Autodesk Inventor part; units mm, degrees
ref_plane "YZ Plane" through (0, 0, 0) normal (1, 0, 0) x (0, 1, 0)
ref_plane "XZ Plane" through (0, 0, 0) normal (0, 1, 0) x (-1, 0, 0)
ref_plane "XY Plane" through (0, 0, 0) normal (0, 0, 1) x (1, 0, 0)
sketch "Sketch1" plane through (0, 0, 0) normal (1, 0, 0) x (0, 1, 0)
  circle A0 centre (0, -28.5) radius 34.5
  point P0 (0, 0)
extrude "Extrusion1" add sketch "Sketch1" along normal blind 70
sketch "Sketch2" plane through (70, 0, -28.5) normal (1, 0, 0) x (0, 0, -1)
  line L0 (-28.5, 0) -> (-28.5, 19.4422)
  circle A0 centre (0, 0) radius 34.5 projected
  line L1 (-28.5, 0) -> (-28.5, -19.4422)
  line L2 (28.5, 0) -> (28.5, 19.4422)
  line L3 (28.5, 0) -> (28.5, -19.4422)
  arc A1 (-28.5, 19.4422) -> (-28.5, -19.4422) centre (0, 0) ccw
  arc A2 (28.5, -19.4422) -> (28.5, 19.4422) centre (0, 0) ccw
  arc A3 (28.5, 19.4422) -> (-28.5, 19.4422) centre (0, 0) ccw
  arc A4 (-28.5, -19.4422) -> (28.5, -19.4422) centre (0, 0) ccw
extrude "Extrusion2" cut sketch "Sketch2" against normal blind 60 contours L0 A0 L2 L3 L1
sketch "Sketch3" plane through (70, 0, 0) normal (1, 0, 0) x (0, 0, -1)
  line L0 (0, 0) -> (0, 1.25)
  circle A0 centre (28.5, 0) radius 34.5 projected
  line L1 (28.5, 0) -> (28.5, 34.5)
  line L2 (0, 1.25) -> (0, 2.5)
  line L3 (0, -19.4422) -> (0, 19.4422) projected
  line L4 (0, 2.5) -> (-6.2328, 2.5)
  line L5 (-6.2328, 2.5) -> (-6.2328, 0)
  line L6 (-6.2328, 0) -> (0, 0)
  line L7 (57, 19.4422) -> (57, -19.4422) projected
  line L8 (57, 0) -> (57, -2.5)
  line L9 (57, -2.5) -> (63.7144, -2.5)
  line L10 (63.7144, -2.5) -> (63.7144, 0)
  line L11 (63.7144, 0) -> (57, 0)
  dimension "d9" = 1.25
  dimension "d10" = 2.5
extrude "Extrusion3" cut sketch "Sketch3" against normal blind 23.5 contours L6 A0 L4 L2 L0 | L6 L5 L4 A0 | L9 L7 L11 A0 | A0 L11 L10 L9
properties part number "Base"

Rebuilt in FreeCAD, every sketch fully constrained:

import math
import FreeCAD as App
import Part
import Sketcher


def add_polygon(sketch, points):
    """Adds a closed chain of lines whose ends are joined by coincident constraints."""
    first, n = sketch.GeometryCount, len(points)
    for a, b in zip(points, points[1:] + points[:1]):
        sketch.addGeometry(Part.LineSegment(App.Vector(*a, 0), App.Vector(*b, 0)), False)
    for i in range(n):
        sketch.addConstraint(Sketcher.Constraint("Coincident", first + i, 2, first + (i + 1) % n, 1))

doc = App.newDocument("Part")
body = doc.addObject("PartDesign::Body", "Body")

# Sketch on YZ plane
sketch1 = doc.addObject("Sketcher::SketchObject", "Sketch")
body.addObject(sketch1)
sketch1.AttachmentSupport = (doc.YZ_Plane, [""])
sketch1.MapMode = "FlatFace"
sketch1.addGeometry(Part.Circle(App.Vector(0, -28, 0), App.Vector(0, 0, 1), 34), False)
sketch1.addConstraint([
    Sketcher.Constraint("PointOnObject", 0, 3, -2),
    Sketcher.Constraint("Diameter", 0, 69.0),
    Sketcher.Constraint("DistanceY", 0, 3, -1, 1, 28.5),
])
pad1 = doc.addObject("PartDesign::Pad", "Pad")
body.addObject(pad1)
pad1.Profile = sketch1
pad1.Length = 70

# Sketch on YZ plane
sketch2 = doc.addObject("Sketcher::SketchObject", "Sketch001")
body.addObject(sketch2)
sketch2.AttachmentSupport = (doc.YZ_Plane, [""])
sketch2.MapMode = "FlatFace"
sketch2.AttachmentOffset = App.Placement(App.Vector(0, 0, 70), App.Rotation())
sketch2.addGeometry([
    Part.LineSegment(App.Vector(19, 0, 0), App.Vector(-19, 0, 0)),
    Part.ArcOfCircle(Part.Circle(App.Vector(0, -28, 0), App.Vector(0, 0, 1), 34), math.radians(124), math.radians(236)),
    Part.LineSegment(App.Vector(-19, -57, 0), App.Vector(19, -57, 0)),
    Part.ArcOfCircle(Part.Circle(App.Vector(0, -28, 0), App.Vector(0, 0, 1), 34), math.radians(-56), math.radians(56)),
], False)
sketch2.addConstraint([
    Sketcher.Constraint("Coincident", 0, 2, 1, 1),
    Sketcher.Constraint("Coincident", 1, 2, 2, 1),
    Sketcher.Constraint("Coincident", 2, 2, 3, 1),
    Sketcher.Constraint("Coincident", 3, 2, 0, 1),
    Sketcher.Constraint("Horizontal", 0),
    Sketcher.Constraint("Horizontal", 2),
    Sketcher.Constraint("Coincident", 3, 3, 1, 3),
    Sketcher.Constraint("Equal", 1, 3),
    Sketcher.Constraint("Symmetric", 0, 2, 3, 2, -1, 1),
    Sketcher.Constraint("Vertical", 0, 2, 1, 2),
    Sketcher.Constraint("Radius", 1, 34.5),
    Sketcher.Constraint("DistanceY", 1, 2, -1, 1, 57.0),
])
pocket1 = doc.addObject("PartDesign::Pocket", "Pocket")
body.addObject(pocket1)
pocket1.Profile = sketch2
pocket1.Length = 60

# Sketch on YZ plane
sketch3 = doc.addObject("Sketcher::SketchObject", "Sketch002")
body.addObject(sketch3)
sketch3.AttachmentSupport = (doc.YZ_Plane, [""])
sketch3.MapMode = "FlatFace"
sketch3.AttachmentOffset = App.Placement(App.Vector(0, 0, 70), App.Rotation())
add_polygon(sketch3, [(0, 0), (2.5, 0), (2.5, 6.2), (0, 6.2)])  # lines 0-3
add_polygon(sketch3, [(-2.5, -57), (-2.5, -63.7), (0, -63.7), (0, -57)])  # lines 4-7
sketch3.addConstraint([
    Sketcher.Constraint("Horizontal", 0),
    Sketcher.Constraint("Vertical", 1),
    Sketcher.Constraint("Horizontal", 2),
    Sketcher.Constraint("Vertical", 3),
    Sketcher.Constraint("Vertical", 4),
    Sketcher.Constraint("Horizontal", 5),
    Sketcher.Constraint("Vertical", 6),
    Sketcher.Constraint("Horizontal", 7),
    Sketcher.Constraint("Coincident", 3, 2, -1, 1),
    Sketcher.Constraint("PointOnObject", 5, 2, -2),
    Sketcher.Constraint("Equal", 2, 5),
    Sketcher.Constraint("DistanceX", 0, 1, 0, 2, 2.5),
    Sketcher.Constraint("DistanceY", 6, 2, -1, 1, 57.0),
    Sketcher.Constraint("DistanceY", 1, 1, 1, 2, 6.2328),
    Sketcher.Constraint("DistanceY", 4, 2, 4, 1, 6.7144),
])
pocket2 = doc.addObject("PartDesign::Pocket", "Pocket001")
body.addObject(pocket2)
pocket2.Profile = sketch3
pocket2.Length = 23.5

doc.recompute()
